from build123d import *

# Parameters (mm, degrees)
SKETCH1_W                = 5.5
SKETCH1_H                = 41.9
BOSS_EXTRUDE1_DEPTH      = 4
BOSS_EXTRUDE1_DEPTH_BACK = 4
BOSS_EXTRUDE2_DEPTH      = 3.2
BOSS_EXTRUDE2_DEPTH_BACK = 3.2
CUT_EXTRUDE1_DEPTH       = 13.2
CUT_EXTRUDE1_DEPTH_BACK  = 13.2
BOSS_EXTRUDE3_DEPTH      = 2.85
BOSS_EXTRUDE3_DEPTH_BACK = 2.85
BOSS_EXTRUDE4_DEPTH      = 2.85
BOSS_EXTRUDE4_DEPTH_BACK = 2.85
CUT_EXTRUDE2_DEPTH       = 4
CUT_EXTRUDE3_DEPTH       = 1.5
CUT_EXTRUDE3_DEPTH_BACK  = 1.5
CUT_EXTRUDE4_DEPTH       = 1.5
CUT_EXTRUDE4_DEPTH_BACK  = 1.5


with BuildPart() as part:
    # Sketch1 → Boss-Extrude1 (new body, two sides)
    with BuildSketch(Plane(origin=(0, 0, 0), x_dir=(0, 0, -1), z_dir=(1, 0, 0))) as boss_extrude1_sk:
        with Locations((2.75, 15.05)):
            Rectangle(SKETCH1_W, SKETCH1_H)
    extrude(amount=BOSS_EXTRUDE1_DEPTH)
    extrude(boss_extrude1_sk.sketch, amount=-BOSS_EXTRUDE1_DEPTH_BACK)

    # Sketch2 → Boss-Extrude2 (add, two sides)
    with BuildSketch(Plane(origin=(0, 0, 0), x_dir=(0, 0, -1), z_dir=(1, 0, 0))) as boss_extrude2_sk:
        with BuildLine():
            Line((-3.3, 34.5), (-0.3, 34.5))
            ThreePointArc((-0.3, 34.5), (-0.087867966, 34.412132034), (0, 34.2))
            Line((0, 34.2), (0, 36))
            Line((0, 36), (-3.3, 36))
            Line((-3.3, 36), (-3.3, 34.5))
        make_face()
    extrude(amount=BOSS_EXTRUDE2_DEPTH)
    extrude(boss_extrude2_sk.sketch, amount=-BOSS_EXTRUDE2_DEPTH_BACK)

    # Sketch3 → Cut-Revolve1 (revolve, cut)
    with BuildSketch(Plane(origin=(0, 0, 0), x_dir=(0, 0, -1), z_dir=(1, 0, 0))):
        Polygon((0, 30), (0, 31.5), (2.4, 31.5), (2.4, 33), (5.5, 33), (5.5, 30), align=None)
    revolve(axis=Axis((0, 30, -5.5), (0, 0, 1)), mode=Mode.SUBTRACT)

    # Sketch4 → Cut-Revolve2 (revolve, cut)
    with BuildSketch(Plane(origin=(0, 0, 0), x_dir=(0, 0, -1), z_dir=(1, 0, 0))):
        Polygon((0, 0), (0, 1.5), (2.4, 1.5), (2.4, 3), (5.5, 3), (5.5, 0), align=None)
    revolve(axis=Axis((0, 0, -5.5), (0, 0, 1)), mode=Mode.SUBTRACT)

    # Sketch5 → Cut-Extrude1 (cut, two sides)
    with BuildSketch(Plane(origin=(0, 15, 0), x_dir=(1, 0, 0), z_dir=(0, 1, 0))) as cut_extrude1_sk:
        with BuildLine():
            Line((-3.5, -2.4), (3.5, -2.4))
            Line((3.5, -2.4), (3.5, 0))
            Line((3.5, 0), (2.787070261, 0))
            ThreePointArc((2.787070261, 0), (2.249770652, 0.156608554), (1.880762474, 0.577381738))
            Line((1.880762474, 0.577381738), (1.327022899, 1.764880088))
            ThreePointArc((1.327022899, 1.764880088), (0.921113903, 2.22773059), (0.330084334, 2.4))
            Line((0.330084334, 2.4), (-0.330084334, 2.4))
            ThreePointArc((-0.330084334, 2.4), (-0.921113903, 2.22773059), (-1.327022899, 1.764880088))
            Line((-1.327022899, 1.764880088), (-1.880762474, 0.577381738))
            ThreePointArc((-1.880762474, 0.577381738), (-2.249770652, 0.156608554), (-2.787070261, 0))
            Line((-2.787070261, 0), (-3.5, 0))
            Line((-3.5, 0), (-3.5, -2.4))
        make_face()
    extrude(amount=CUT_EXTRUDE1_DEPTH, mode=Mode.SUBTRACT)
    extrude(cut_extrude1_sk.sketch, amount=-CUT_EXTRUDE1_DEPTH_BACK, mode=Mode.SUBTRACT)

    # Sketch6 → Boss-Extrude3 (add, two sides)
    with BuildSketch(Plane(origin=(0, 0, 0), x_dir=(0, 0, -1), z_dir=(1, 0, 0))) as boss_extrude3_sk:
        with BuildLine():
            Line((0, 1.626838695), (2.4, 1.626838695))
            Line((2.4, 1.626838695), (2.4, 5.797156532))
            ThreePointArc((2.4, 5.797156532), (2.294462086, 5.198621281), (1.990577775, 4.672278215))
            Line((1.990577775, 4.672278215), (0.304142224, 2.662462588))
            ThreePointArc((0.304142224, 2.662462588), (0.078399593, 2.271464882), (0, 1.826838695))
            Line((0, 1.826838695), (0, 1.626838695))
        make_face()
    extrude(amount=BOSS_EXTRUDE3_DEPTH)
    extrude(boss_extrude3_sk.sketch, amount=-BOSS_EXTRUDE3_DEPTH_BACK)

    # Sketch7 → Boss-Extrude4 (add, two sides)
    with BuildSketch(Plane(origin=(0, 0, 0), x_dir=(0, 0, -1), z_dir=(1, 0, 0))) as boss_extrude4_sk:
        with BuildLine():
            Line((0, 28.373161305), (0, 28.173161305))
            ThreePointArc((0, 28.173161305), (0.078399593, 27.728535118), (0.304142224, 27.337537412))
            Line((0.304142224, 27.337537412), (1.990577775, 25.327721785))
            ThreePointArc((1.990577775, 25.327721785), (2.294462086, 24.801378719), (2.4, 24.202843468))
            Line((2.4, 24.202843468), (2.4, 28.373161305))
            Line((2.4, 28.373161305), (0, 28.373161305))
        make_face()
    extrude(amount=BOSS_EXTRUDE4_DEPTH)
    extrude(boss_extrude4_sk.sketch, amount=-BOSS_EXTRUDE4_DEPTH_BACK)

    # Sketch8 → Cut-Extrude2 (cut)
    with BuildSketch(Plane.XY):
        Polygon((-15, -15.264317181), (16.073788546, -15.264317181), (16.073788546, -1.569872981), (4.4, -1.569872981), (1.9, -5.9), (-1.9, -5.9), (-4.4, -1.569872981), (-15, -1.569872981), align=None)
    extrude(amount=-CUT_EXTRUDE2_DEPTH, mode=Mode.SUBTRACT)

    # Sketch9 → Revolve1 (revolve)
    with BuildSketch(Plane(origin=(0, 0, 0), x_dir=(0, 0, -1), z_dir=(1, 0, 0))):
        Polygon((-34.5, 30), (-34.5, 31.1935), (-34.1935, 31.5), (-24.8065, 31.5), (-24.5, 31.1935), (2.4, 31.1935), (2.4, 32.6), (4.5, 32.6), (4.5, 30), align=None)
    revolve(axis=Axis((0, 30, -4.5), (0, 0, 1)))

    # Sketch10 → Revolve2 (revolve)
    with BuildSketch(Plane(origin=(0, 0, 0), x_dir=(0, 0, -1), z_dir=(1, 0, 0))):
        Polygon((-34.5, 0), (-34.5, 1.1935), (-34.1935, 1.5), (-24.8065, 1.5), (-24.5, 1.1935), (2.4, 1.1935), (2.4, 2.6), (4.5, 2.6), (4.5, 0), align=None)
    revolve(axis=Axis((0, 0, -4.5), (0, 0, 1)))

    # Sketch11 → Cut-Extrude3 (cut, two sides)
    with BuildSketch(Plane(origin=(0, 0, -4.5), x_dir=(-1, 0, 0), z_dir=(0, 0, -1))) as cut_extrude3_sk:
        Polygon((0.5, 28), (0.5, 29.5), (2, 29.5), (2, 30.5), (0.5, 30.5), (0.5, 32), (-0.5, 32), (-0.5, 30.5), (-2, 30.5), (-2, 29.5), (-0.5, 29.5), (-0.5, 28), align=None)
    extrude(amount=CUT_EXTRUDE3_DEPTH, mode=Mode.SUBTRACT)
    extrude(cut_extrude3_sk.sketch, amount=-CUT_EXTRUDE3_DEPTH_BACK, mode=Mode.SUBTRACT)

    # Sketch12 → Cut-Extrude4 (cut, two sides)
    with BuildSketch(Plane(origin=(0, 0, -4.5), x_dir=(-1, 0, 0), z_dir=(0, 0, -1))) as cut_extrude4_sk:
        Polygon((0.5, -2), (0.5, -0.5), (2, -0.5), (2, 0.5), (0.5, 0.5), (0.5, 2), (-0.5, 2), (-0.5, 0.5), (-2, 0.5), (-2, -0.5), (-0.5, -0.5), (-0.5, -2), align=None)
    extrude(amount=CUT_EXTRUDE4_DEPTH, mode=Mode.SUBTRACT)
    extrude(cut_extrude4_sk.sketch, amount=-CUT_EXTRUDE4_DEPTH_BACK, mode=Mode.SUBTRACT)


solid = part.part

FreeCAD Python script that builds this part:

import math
import FreeCAD as App
import Part
import Sketcher
Q = App.Units.Quantity

doc = App.newDocument("Part")
body = doc.addObject("PartDesign::Body", "Body")

# Sketch on YZ plane
sketch1 = body.newObject("Sketcher::SketchObject", "Sketch")
sketch1.AttachmentSupport = (doc.getObject("YZ_Plane"), [""])
sketch1.MapMode = "FlatFace"
sketch1.addGeometry([
    Part.LineSegment(App.Vector(36, 0, 0), App.Vector(-5.9, 0, 0)),
    Part.LineSegment(App.Vector(-5.9, 0, 0), App.Vector(-5.9, -5.5, 0)),
    Part.LineSegment(App.Vector(-5.9, -5.5, 0), App.Vector(36, -5.5, 0)),
    Part.LineSegment(App.Vector(36, -5.5, 0), App.Vector(36, 0, 0)),
], False)
sketch1.addConstraint([
    Sketcher.Constraint("Coincident", 0, 2, 1, 1),
    Sketcher.Constraint("Coincident", 1, 2, 2, 1),
    Sketcher.Constraint("Coincident", 2, 2, 3, 1),
    Sketcher.Constraint("Coincident", 3, 2, 0, 1),
    Sketcher.Constraint("Horizontal", 0),
    Sketcher.Constraint("Vertical", 1),
    Sketcher.Constraint("Horizontal", 2),
    Sketcher.Constraint("Vertical", 3),
    Sketcher.Constraint("PointOnObject", 0, 2, -1),
    Sketcher.Constraint("DistanceX", 0, 2, 0, 1, Q("41.9 mm")),
    Sketcher.Constraint("DistanceY", 1, 2, 1, 1, Q("5.5 mm")),
    Sketcher.Constraint("DistanceX", -1, 1, 2, 2, Q("36 mm")),
])
pad1 = body.newObject("PartDesign::Pad", "Pad")
pad1.Profile = sketch1
pad1.Type = "TwoLengths"
pad1.Length = 4
pad1.Length2 = 4

# Sketch on YZ plane
sketch2 = body.newObject("Sketcher::SketchObject", "Sketch001")
sketch2.AttachmentSupport = (doc.getObject("YZ_Plane"), [""])
sketch2.MapMode = "FlatFace"
sketch2.addGeometry([
    Part.LineSegment(App.Vector(34.5, 3.3, 0), App.Vector(34.5, 0.3, 0)),  # 0
    Part.ArcOfCircle(Part.Circle(App.Vector(34.2, 0.3, 0), App.Vector(0, 0, 1), 0.3), math.radians(-90), math.radians(0)),  # 1
    Part.LineSegment(App.Vector(34.2, 0, 0), App.Vector(36, 0, 0)),  # 2
    Part.LineSegment(App.Vector(36, 0, 0), App.Vector(36, 3.3, 0)),  # 3
    Part.LineSegment(App.Vector(36, 3.3, 0), App.Vector(34.5, 3.3, 0)),  # 4
], False)
sketch2.addConstraint([
    Sketcher.Constraint("Tangent", 0, 2, 1, 2),
    Sketcher.Constraint("Tangent", 1, 1, 2, 1),
    Sketcher.Constraint("Coincident", 2, 2, 3, 1),
    Sketcher.Constraint("Coincident", 3, 2, 4, 1),
    Sketcher.Constraint("Coincident", 4, 2, 0, 1),
    Sketcher.Constraint("Vertical", 0),
    Sketcher.Constraint("Horizontal", 2),
    Sketcher.Constraint("Vertical", 3),
    Sketcher.Constraint("Horizontal", 4),
    Sketcher.Constraint("PointOnObject", 1, 1, -1),
    Sketcher.Constraint("Radius", 1, Q("0.3 mm")),
    Sketcher.Constraint("DistanceY", 0, 2, 0, 1, Q("3 mm")),
    Sketcher.Constraint("DistanceX", 2, 1, 2, 2, Q("1.8 mm")),
    Sketcher.Constraint("DistanceX", -1, 1, 2, 2, Q("36 mm")),
])
pad2 = body.newObject("PartDesign::Pad", "Pad001")
pad2.Profile = sketch2
pad2.Type = "TwoLengths"
pad2.Length = 3.2
pad2.Length2 = 3.2

# Sketch on YZ plane
sketch3 = body.newObject("Sketcher::SketchObject", "Sketch002")
sketch3.AttachmentSupport = (doc.getObject("YZ_Plane"), [""])
sketch3.MapMode = "FlatFace"
sketch3.addGeometry([
    Part.LineSegment(App.Vector(31.5, 0, 0), App.Vector(30, 0, 0)),  # 0
    Part.LineSegment(App.Vector(30, 0, 0), App.Vector(30, -5.5, 0)),  # 1
    Part.LineSegment(App.Vector(30, -5.5, 0), App.Vector(33, -5.5, 0)),  # 2
    Part.LineSegment(App.Vector(33, -5.5, 0), App.Vector(33, -2.4, 0)),  # 3
    Part.LineSegment(App.Vector(33, -2.4, 0), App.Vector(31.5, -2.4, 0)),  # 4
    Part.LineSegment(App.Vector(31.5, -2.4, 0), App.Vector(31.5, 0, 0)),  # 5
], False)
sketch3.addGeometry(Part.LineSegment(App.Vector(30, -5.5, 0), App.Vector(30, 0, 0)), True)  # axis
sketch3.addConstraint([
    Sketcher.Constraint("Coincident", 0, 2, 1, 1),
    Sketcher.Constraint("Coincident", 1, 2, 2, 1),
    Sketcher.Constraint("Coincident", 2, 2, 3, 1),
    Sketcher.Constraint("Coincident", 3, 2, 4, 1),
    Sketcher.Constraint("Coincident", 4, 2, 5, 1),
    Sketcher.Constraint("Coincident", 5, 2, 0, 1),
    Sketcher.Constraint("Horizontal", 0),
    Sketcher.Constraint("Vertical", 1),
    Sketcher.Constraint("Horizontal", 2),
    Sketcher.Constraint("Vertical", 3),
    Sketcher.Constraint("Horizontal", 4),
    Sketcher.Constraint("Vertical", 5),
    Sketcher.Constraint("Vertical", 6),
    Sketcher.Constraint("Coincident", 6, 1, 1, 2),
    Sketcher.Constraint("PointOnObject", 0, 2, -1),
    Sketcher.Constraint("PointOnObject", 6, 2, -1),
    Sketcher.Constraint("Equal", 0, 4),
    Sketcher.Constraint("DistanceX", 2, 1, 2, 2, Q("3 mm")),
    Sketcher.Constraint("DistanceY", 1, 2, 1, 1, Q("5.5 mm")),
    Sketcher.Constraint("DistanceY", 3, 1, 3, 2, Q("3.1 mm")),
    Sketcher.Constraint("DistanceX", -1, 1, 0, 2, Q("30 mm")),
])
groove = body.newObject("PartDesign::Groove", "Groove")
groove.Profile = sketch3
groove.ReferenceAxis = (sketch3, ["Axis0"])
groove.Angle = 360

# Sketch on YZ plane
sketch4 = body.newObject("Sketcher::SketchObject", "Sketch003")
sketch4.AttachmentSupport = (doc.getObject("YZ_Plane"), [""])
sketch4.MapMode = "FlatFace"
sketch4.addGeometry([
    Part.LineSegment(App.Vector(1.5, 0, 0), App.Vector(0, 0, 0)),  # 0
    Part.LineSegment(App.Vector(0, 0, 0), App.Vector(0, -5.5, 0)),  # 1
    Part.LineSegment(App.Vector(0, -5.5, 0), App.Vector(3, -5.5, 0)),  # 2
    Part.LineSegment(App.Vector(3, -5.5, 0), App.Vector(3, -2.4, 0)),  # 3
    Part.LineSegment(App.Vector(3, -2.4, 0), App.Vector(1.5, -2.4, 0)),  # 4
    Part.LineSegment(App.Vector(1.5, -2.4, 0), App.Vector(1.5, 0, 0)),  # 5
], False)
sketch4.addConstraint([
    Sketcher.Constraint("Coincident", 0, 2, 1, 1),
    Sketcher.Constraint("Coincident", 1, 2, 2, 1),
    Sketcher.Constraint("Coincident", 2, 2, 3, 1),
    Sketcher.Constraint("Coincident", 3, 2, 4, 1),
    Sketcher.Constraint("Coincident", 4, 2, 5, 1),
    Sketcher.Constraint("Coincident", 5, 2, 0, 1),
    Sketcher.Constraint("Horizontal", 0),
    Sketcher.Constraint("Vertical", 1),
    Sketcher.Constraint("Horizontal", 2),
    Sketcher.Constraint("Vertical", 3),
    Sketcher.Constraint("Horizontal", 4),
    Sketcher.Constraint("Vertical", 5),
    Sketcher.Constraint("Coincident", 0, 2, -1, 1),
    Sketcher.Constraint("Equal", 0, 4),
    Sketcher.Constraint("DistanceX", 2, 1, 2, 2, Q("3 mm")),
    Sketcher.Constraint("DistanceY", 1, 2, 1, 1, Q("5.5 mm")),
    Sketcher.Constraint("DistanceY", 3, 1, 3, 2, Q("3.1 mm")),
])
groove2 = body.newObject("PartDesign::Groove", "Groove001")
groove2.Profile = sketch4
groove2.ReferenceAxis = (sketch4, ["V_Axis"])
groove2.Angle = 360

# Sketch on XZ plane
sketch5 = body.newObject("Sketcher::SketchObject", "Sketch004")
sketch5.AttachmentSupport = (doc.getObject("XZ_Plane"), [""])
sketch5.MapMode = "FlatFace"
sketch5.AttachmentOffset = App.Placement(App.Vector(0, 0, -15), App.Rotation())
sketch5.addGeometry([
    Part.LineSegment(App.Vector(-3.5, 2.4, 0), App.Vector(3.5, 2.4, 0)),  # 0
    Part.LineSegment(App.Vector(3.5, 2.4, 0), App.Vector(3.5, 0, 0)),  # 1
    Part.LineSegment(App.Vector(3.5, 0, 0), App.Vector(2.78707, 0, 0)),  # 2
    Part.ArcOfCircle(Part.Circle(App.Vector(2.78707, -1, 0), App.Vector(0, 0, 1), 1), math.radians(90), math.radians(155)),  # 3
    Part.LineSegment(App.Vector(1.880762, -0.577382, 0), App.Vector(1.327023, -1.76488, 0)),  # 4
    Part.ArcOfCircle(Part.Circle(App.Vector(0.330084, -1.3, 0), App.Vector(0, 0, 1), 1.1), math.radians(-90), math.radians(-25)),  # 5
    Part.LineSegment(App.Vector(0.330084, -2.4, 0), App.Vector(-0.330084, -2.4, 0)),  # 6
    Part.ArcOfCircle(Part.Circle(App.Vector(-0.330084, -1.3, 0), App.Vector(0, 0, 1), 1.1), math.radians(-155), math.radians(-90)),  # 7
    Part.LineSegment(App.Vector(-1.327023, -1.76488, 0), App.Vector(-1.880762, -0.577382, 0)),  # 8
    Part.ArcOfCircle(Part.Circle(App.Vector(-2.78707, -1, 0), App.Vector(0, 0, 1), 1), math.radians(25), math.radians(90)),  # 9
    Part.LineSegment(App.Vector(-2.78707, 0, 0), App.Vector(-3.5, 0, 0)),  # 10
    Part.LineSegment(App.Vector(-3.5, 0, 0), App.Vector(-3.5, 2.4, 0)),  # 11
], False)
sketch5.addConstraint([
    Sketcher.Constraint("Coincident", 0, 2, 1, 1),
    Sketcher.Constraint("Coincident", 1, 2, 2, 1),
    Sketcher.Constraint("Tangent", 2, 2, 3, 1),
    Sketcher.Constraint("Tangent", 3, 2, 4, 1),
    Sketcher.Constraint("Tangent", 4, 2, 5, 2),
    Sketcher.Constraint("Tangent", 5, 1, 6, 1),
    Sketcher.Constraint("Tangent", 6, 2, 7, 2),
    Sketcher.Constraint("Tangent", 7, 1, 8, 1),
    Sketcher.Constraint("Tangent", 8, 2, 9, 1),
    Sketcher.Constraint("Tangent", 9, 2, 10, 1),
    Sketcher.Constraint("Coincident", 10, 2, 11, 1),
    Sketcher.Constraint("Coincident", 11, 2, 0, 1),
    Sketcher.Constraint("Horizontal", 0),
    Sketcher.Constraint("Vertical", 1),
    Sketcher.Constraint("Horizontal", 2),
    Sketcher.Constraint("Horizontal", 6),
    Sketcher.Constraint("Horizontal", 10),
    Sketcher.Constraint("Vertical", 11),
    Sketcher.Constraint("Equal", 5, 7),
    Sketcher.Constraint("Equal", 3, 9),
    Sketcher.Constraint("Symmetric", 2, 2, 9, 2, -1, 1),
    Sketcher.Constraint("Symmetric", 4, 2, 7, 1, -2),
    Sketcher.Constraint("Equal", 2, 10),
    Sketcher.Constraint("Radius", 3, Q("1 mm")),
    Sketcher.Constraint("Radius", 5, Q("1.1 mm")),
    Sketcher.Constraint("DistanceX", 0, 1, 0, 2, Q("7 mm")),
    Sketcher.Constraint("Angle", 4, Q("-115 deg")),
    Sketcher.Constraint("DistanceY", 1, 2, 1, 1, Q("2.4 mm")),
    Sketcher.Constraint("DistanceY", 5, 3, -1, 1, Q("1.3 mm")),
    Sketcher.Constraint("DistanceX", 2, 2, 2, 1, Q("0.71293 mm")),
])
pocket1 = body.newObject("PartDesign::Pocket", "Pocket")
pocket1.Profile = sketch5
pocket1.Type = "TwoLengths"
pocket1.Length = 13.2
pocket1.Length2 = 13.2

# Sketch on YZ plane
sketch6 = body.newObject("Sketcher::SketchObject", "Sketch005")
sketch6.AttachmentSupport = (doc.getObject("YZ_Plane"), [""])
sketch6.MapMode = "FlatFace"
sketch6.addGeometry([
    Part.LineSegment(App.Vector(1.626839, 0, 0), App.Vector(1.626839, -2.4, 0)),  # 0
    Part.LineSegment(App.Vector(1.626839, -2.4, 0), App.Vector(5.797157, -2.4, 0)),  # 1
    Part.ArcOfCircle(Part.Circle(App.Vector(5.797157, -0.65, 0), App.Vector(0, 0, 1), 1.75), math.radians(-130), math.radians(-90)),  # 2
    Part.LineSegment(App.Vector(4.672278, -1.990578, 0), App.Vector(2.662463, -0.304142, 0)),  # 3
    Part.ArcOfCircle(Part.Circle(App.Vector(1.826839, -1.3, 0), App.Vector(0, 0, 1), 1.3), math.radians(50), math.radians(90)),  # 4
    Part.LineSegment(App.Vector(1.826839, 0, 0), App.Vector(1.626839, 0, 0)),  # 5
], False)
sketch6.addConstraint([
    Sketcher.Constraint("Coincident", 0, 2, 1, 1),
    Sketcher.Constraint("Tangent", 1, 2, 2, 2),
    Sketcher.Constraint("Tangent", 2, 1, 3, 1),
    Sketcher.Constraint("Tangent", 3, 2, 4, 1),
    Sketcher.Constraint("Tangent", 4, 2, 5, 1),
    Sketcher.Constraint("Coincident", 5, 2, 0, 1),
    Sketcher.Constraint("Vertical", 0),
    Sketcher.Constraint("Horizontal", 1),
    Sketcher.Constraint("Horizontal", 5),
    Sketcher.Constraint("PointOnObject", 4, 2, -1),
    Sketcher.Constraint("Radius", 4, Q("1.3 mm")),
    Sketcher.Constraint("Angle", 3, Q("140 deg")),
    Sketcher.Constraint("Radius", 2, Q("1.75 mm")),
    Sketcher.Constraint("DistanceX", 5, 2, 5, 1, Q("0.2 mm")),
    Sketcher.Constraint("DistanceY", 0, 2, 0, 1, Q("2.4 mm")),
    Sketcher.Constraint("DistanceX", -1, 1, 4, 3, Q("1.826839 mm")),
])
pad3 = body.newObject("PartDesign::Pad", "Pad002")
pad3.Profile = sketch6
pad3.Type = "TwoLengths"
pad3.Length = 2.85
pad3.Length2 = 2.85

# Sketch on YZ plane
sketch7 = body.newObject("Sketcher::SketchObject", "Sketch006")
sketch7.AttachmentSupport = (doc.getObject("YZ_Plane"), [""])
sketch7.MapMode = "FlatFace"
sketch7.addGeometry([
    Part.LineSegment(App.Vector(28.373161, 0, 0), App.Vector(28.173161, 0, 0)),  # 0
    Part.ArcOfCircle(Part.Circle(App.Vector(28.173161, -1.3, 0), App.Vector(0, 0, 1), 1.3), math.radians(90), math.radians(130)),  # 1
    Part.LineSegment(App.Vector(27.337537, -0.304142, 0), App.Vector(25.327722, -1.990578, 0)),  # 2
    Part.ArcOfCircle(Part.Circle(App.Vector(24.202843, -0.65, 0), App.Vector(0, 0, 1), 1.75), math.radians(-90), math.radians(-50)),  # 3
    Part.LineSegment(App.Vector(24.202843, -2.4, 0), App.Vector(28.373161, -2.4, 0)),  # 4
    Part.LineSegment(App.Vector(28.373161, -2.4, 0), App.Vector(28.373161, 0, 0)),  # 5
], False)
sketch7.addConstraint([
    Sketcher.Constraint("Tangent", 0, 2, 1, 1),
    Sketcher.Constraint("Tangent", 1, 2, 2, 1),
    Sketcher.Constraint("Tangent", 2, 2, 3, 2),
    Sketcher.Constraint("Tangent", 3, 1, 4, 1),
    Sketcher.Constraint("Coincident", 4, 2, 5, 1),
    Sketcher.Constraint("Coincident", 5, 2, 0, 1),
    Sketcher.Constraint("Horizontal", 0),
    Sketcher.Constraint("Horizontal", 4),
    Sketcher.Constraint("Vertical", 5),
    Sketcher.Constraint("PointOnObject", 0, 2, -1),
    Sketcher.Constraint("Radius", 1, Q("1.3 mm")),
    Sketcher.Constraint("Angle", 2, Q("-140 deg")),
    Sketcher.Constraint("Radius", 3, Q("1.75 mm")),
    Sketcher.Constraint("DistanceX", 0, 2, 0, 1, Q("0.2 mm")),
    Sketcher.Constraint("DistanceY", 5, 1, 5, 2, Q("2.4 mm")),
    Sketcher.Constraint("DistanceX", -1, 1, 1, 3, Q("28.173161 mm")),
])
pad4 = body.newObject("PartDesign::Pad", "Pad003")
pad4.Profile = sketch7
pad4.Type = "TwoLengths"
pad4.Length = 2.85
pad4.Length2 = 2.85

# Sketch on XY plane
sketch8 = body.newObject("Sketcher::SketchObject", "Sketch007")
sketch8.AttachmentSupport = (doc.getObject("XY_Plane"), [""])
sketch8.MapMode = "FlatFace"
sketch8.addGeometry([
    Part.LineSegment(App.Vector(-15, -15.264317, 0), App.Vector(16.073789, -15.264317, 0)),  # 0
    Part.LineSegment(App.Vector(16.073789, -15.264317, 0), App.Vector(16.073789, -1.569873, 0)),  # 1
    Part.LineSegment(App.Vector(16.073789, -1.569873, 0), App.Vector(4.4, -1.569873, 0)),  # 2
    Part.LineSegment(App.Vector(4.4, -1.569873, 0), App.Vector(1.9, -5.9, 0)),  # 3
    Part.LineSegment(App.Vector(1.9, -5.9, 0), App.Vector(-1.9, -5.9, 0)),  # 4
    Part.LineSegment(App.Vector(-1.9, -5.9, 0), App.Vector(-4.4, -1.569873, 0)),  # 5
    Part.LineSegment(App.Vector(-4.4, -1.569873, 0), App.Vector(-15, -1.569873, 0)),  # 6
    Part.LineSegment(App.Vector(-15, -1.569873, 0), App.Vector(-15, -15.264317, 0)),  # 7
], False)
sketch8.addConstraint([
    Sketcher.Constraint("Coincident", 0, 2, 1, 1),
    Sketcher.Constraint("Coincident", 1, 2, 2, 1),
    Sketcher.Constraint("Coincident", 2, 2, 3, 1),
    Sketcher.Constraint("Coincident", 3, 2, 4, 1),
    Sketcher.Constraint("Coincident", 4, 2, 5, 1),
    Sketcher.Constraint("Coincident", 5, 2, 6, 1),
    Sketcher.Constraint("Coincident", 6, 2, 7, 1),
    Sketcher.Constraint("Coincident", 7, 2, 0, 1),
    Sketcher.Constraint("Horizontal", 0),
    Sketcher.Constraint("Vertical", 1),
    Sketcher.Constraint("Horizontal", 2),
    Sketcher.Constraint("Horizontal", 4),
    Sketcher.Constraint("Horizontal", 6),
    Sketcher.Constraint("Vertical", 7),
    Sketcher.Constraint("Symmetric", 2, 2, 5, 2, -2),
    Sketcher.Constraint("Equal", 3, 5),
    Sketcher.Constraint("Angle", 3, Q("-120 deg")),
    Sketcher.Constraint("Distance", 3, Q("5 mm")),
    Sketcher.Constraint("DistanceX", 4, 2, 4, 1, Q("3.8 mm")),
    Sketcher.Constraint("DistanceX", 6, 2, 6, 1, Q("10.6 mm")),
    Sketcher.Constraint("DistanceY", 3, 2, -1, 1, Q("5.9 mm")),
    Sketcher.Constraint("DistanceX", 0, 1, 0, 2, Q("31.073789 mm")),
    Sketcher.Constraint("DistanceY", 1, 1, 1, 2, Q("13.694444 mm")),
])
pocket2 = body.newObject("PartDesign::Pocket", "Pocket001")
pocket2.Profile = sketch8
pocket2.Length = 4

# Sketch on YZ plane
sketch9 = body.newObject("Sketcher::SketchObject", "Sketch008")
sketch9.AttachmentSupport = (doc.getObject("YZ_Plane"), [""])
sketch9.MapMode = "FlatFace"
sketch9.addGeometry([
    Part.LineSegment(App.Vector(31.1935, 34.5, 0), App.Vector(30, 34.5, 0)),  # 0
    Part.LineSegment(App.Vector(30, 34.5, 0), App.Vector(30, -4.5, 0)),  # 1
    Part.LineSegment(App.Vector(30, -4.5, 0), App.Vector(32.6, -4.5, 0)),  # 2
    Part.LineSegment(App.Vector(32.6, -4.5, 0), App.Vector(32.6, -2.4, 0)),  # 3
    Part.LineSegment(App.Vector(32.6, -2.4, 0), App.Vector(31.1935, -2.4, 0)),  # 4
    Part.LineSegment(App.Vector(31.1935, -2.4, 0), App.Vector(31.1935, 24.5, 0)),  # 5
    Part.LineSegment(App.Vector(31.1935, 24.5, 0), App.Vector(31.5, 24.8065, 0)),  # 6
    Part.LineSegment(App.Vector(31.5, 24.8065, 0), App.Vector(31.5, 34.1935, 0)),  # 7
    Part.LineSegment(App.Vector(31.5, 34.1935, 0), App.Vector(31.1935, 34.5, 0)),  # 8
], False)
sketch9.addGeometry(Part.LineSegment(App.Vector(30, -4.5, 0), App.Vector(30, 34.5, 0)), True)  # axis
sketch9.addConstraint([
    Sketcher.Constraint("Coincident", 0, 2, 1, 1),
    Sketcher.Constraint("Coincident", 1, 2, 2, 1),
    Sketcher.Constraint("Coincident", 2, 2, 3, 1),
    Sketcher.Constraint("Coincident", 3, 2, 4, 1),
    Sketcher.Constraint("Coincident", 4, 2, 5, 1),
    Sketcher.Constraint("Coincident", 5, 2, 6, 1),
    Sketcher.Constraint("Coincident", 6, 2, 7, 1),
    Sketcher.Constraint("Coincident", 7, 2, 8, 1),
    Sketcher.Constraint("Coincident", 8, 2, 0, 1),
    Sketcher.Constraint("Horizontal", 0),
    Sketcher.Constraint("Vertical", 1),
    Sketcher.Constraint("Horizontal", 2),
    Sketcher.Constraint("Vertical", 3),
    Sketcher.Constraint("Horizontal", 4),
    Sketcher.Constraint("Vertical", 5),
    Sketcher.Constraint("Vertical", 7),
    Sketcher.Constraint("Vertical", 9),
    Sketcher.Constraint("Coincident", 9, 1, 1, 2),
    Sketcher.Constraint("Perpendicular", 6, 8),
    Sketcher.Constraint("Horizontal", 8, 2, 9, 2),
    Sketcher.Constraint("Vertical", 5, 2, 8, 2),
    Sketcher.Constraint("Equal", 6, 8),
    Sketcher.Constraint("DistanceY", 1, 2, 1, 1, Q("39 mm")),
    Sketcher.Constraint("DistanceX", 2, 1, 2, 2, Q("2.6 mm")),
    Sketcher.Constraint("DistanceY", 3, 1, 3, 2, Q("2.1 mm")),
    Sketcher.Constraint("DistanceY", 5, 1, 5, 2, Q("26.9 mm")),
    Sketcher.Constraint("DistanceX", -1, 1, 0, 2, Q("30 mm")),
    Sketcher.Constraint("DistanceY", -1, 1, 0, 2, Q("34.5 mm")),
    Sketcher.Constraint("DistanceX", -1, 1, 6, 2, Q("31.5 mm")),
    Sketcher.Constraint("DistanceY", 7, 1, 7, 2, Q("9.387 mm")),
])
revolution = body.newObject("PartDesign::Revolution", "Revolution")
revolution.Profile = sketch9
revolution.ReferenceAxis = (sketch9, ["Axis0"])
revolution.Angle = 360

# Sketch on YZ plane
sketch10 = body.newObject("Sketcher::SketchObject", "Sketch009")
sketch10.AttachmentSupport = (doc.getObject("YZ_Plane"), [""])
sketch10.MapMode = "FlatFace"
sketch10.addGeometry([
    Part.LineSegment(App.Vector(1.1935, 34.5, 0), App.Vector(0, 34.5, 0)),  # 0
    Part.LineSegment(App.Vector(0, 34.5, 0), App.Vector(0, -4.5, 0)),  # 1
    Part.LineSegment(App.Vector(0, -4.5, 0), App.Vector(2.6, -4.5, 0)),  # 2
    Part.LineSegment(App.Vector(2.6, -4.5, 0), App.Vector(2.6, -2.4, 0)),  # 3
    Part.LineSegment(App.Vector(2.6, -2.4, 0), App.Vector(1.1935, -2.4, 0)),  # 4
    Part.LineSegment(App.Vector(1.1935, -2.4, 0), App.Vector(1.1935, 24.5, 0)),  # 5
    Part.LineSegment(App.Vector(1.1935, 24.5, 0), App.Vector(1.5, 24.8065, 0)),  # 6
    Part.LineSegment(App.Vector(1.5, 24.8065, 0), App.Vector(1.5, 34.1935, 0)),  # 7
    Part.LineSegment(App.Vector(1.5, 34.1935, 0), App.Vector(1.1935, 34.5, 0)),  # 8
], False)
sketch10.addConstraint([
    Sketcher.Constraint("Coincident", 0, 2, 1, 1),
    Sketcher.Constraint("Coincident", 1, 2, 2, 1),
    Sketcher.Constraint("Coincident", 2, 2, 3, 1),
    Sketcher.Constraint("Coincident", 3, 2, 4, 1),
    Sketcher.Constraint("Coincident", 4, 2, 5, 1),
    Sketcher.Constraint("Coincident", 5, 2, 6, 1),
    Sketcher.Constraint("Coincident", 6, 2, 7, 1),
    Sketcher.Constraint("Coincident", 7, 2, 8, 1),
    Sketcher.Constraint("Coincident", 8, 2, 0, 1),
    Sketcher.Constraint("Horizontal", 0),
    Sketcher.Constraint("Vertical", 1),
    Sketcher.Constraint("Horizontal", 2),
    Sketcher.Constraint("Vertical", 3),
    Sketcher.Constraint("Horizontal", 4),
    Sketcher.Constraint("Vertical", 5),
    Sketcher.Constraint("Vertical", 7),
    Sketcher.Constraint("PointOnObject", 0, 2, -2),
    Sketcher.Constraint("Perpendicular", 6, 8),
    Sketcher.Constraint("Vertical", 5, 2, 8, 2),
    Sketcher.Constraint("Equal", 6, 8),
    Sketcher.Constraint("DistanceY", 1, 2, 1, 1, Q("39 mm")),
    Sketcher.Constraint("DistanceX", 2, 1, 2, 2, Q("2.6 mm")),
    Sketcher.Constraint("DistanceY", 3, 1, 3, 2, Q("2.1 mm")),
    Sketcher.Constraint("DistanceY", 5, 1, 5, 2, Q("26.9 mm")),
    Sketcher.Constraint("DistanceY", -1, 1, 0, 2, Q("34.5 mm")),
    Sketcher.Constraint("DistanceX", -1, 1, 6, 2, Q("1.5 mm")),
    Sketcher.Constraint("DistanceY", 7, 1, 7, 2, Q("9.387 mm")),
])
revolution2 = body.newObject("PartDesign::Revolution", "Revolution001")
revolution2.Profile = sketch10
revolution2.ReferenceAxis = (sketch10, ["V_Axis"])
revolution2.Angle = 360

# Sketch on XY plane
sketch11 = body.newObject("Sketcher::SketchObject", "Sketch010")
sketch11.AttachmentSupport = (doc.getObject("XY_Plane"), [""])
sketch11.MapMode = "FlatFace"
sketch11.AttachmentOffset = App.Placement(App.Vector(0, 0, -4.5), App.Rotation())
sketch11.addGeometry([
    Part.LineSegment(App.Vector(-0.5, 28, 0), App.Vector(-0.5, 29.5, 0)),  # 0
    Part.LineSegment(App.Vector(-0.5, 29.5, 0), App.Vector(-2, 29.5, 0)),  # 1
    Part.LineSegment(App.Vector(-2, 29.5, 0), App.Vector(-2, 30.5, 0)),  # 2
    Part.LineSegment(App.Vector(-2, 30.5, 0), App.Vector(-0.5, 30.5, 0)),  # 3
    Part.LineSegment(App.Vector(-0.5, 30.5, 0), App.Vector(-0.5, 32, 0)),  # 4
    Part.LineSegment(App.Vector(-0.5, 32, 0), App.Vector(0.5, 32, 0)),  # 5
    Part.LineSegment(App.Vector(0.5, 32, 0), App.Vector(0.5, 30.5, 0)),  # 6
    Part.LineSegment(App.Vector(0.5, 30.5, 0), App.Vector(2, 30.5, 0)),  # 7
    Part.LineSegment(App.Vector(2, 30.5, 0), App.Vector(2, 29.5, 0)),  # 8
    Part.LineSegment(App.Vector(2, 29.5, 0), App.Vector(0.5, 29.5, 0)),  # 9
    Part.LineSegment(App.Vector(0.5, 29.5, 0), App.Vector(0.5, 28, 0)),  # 10
    Part.LineSegment(App.Vector(0.5, 28, 0), App.Vector(-0.5, 28, 0)),  # 11
], False)
sketch11.addConstraint([
    Sketcher.Constraint("Coincident", 0, 2, 1, 1),
    Sketcher.Constraint("Coincident", 1, 2, 2, 1),
    Sketcher.Constraint("Coincident", 2, 2, 3, 1),
    Sketcher.Constraint("Coincident", 3, 2, 4, 1),
    Sketcher.Constraint("Coincident", 4, 2, 5, 1),
    Sketcher.Constraint("Coincident", 5, 2, 6, 1),
    Sketcher.Constraint("Coincident", 6, 2, 7, 1),
    Sketcher.Constraint("Coincident", 7, 2, 8, 1),
    Sketcher.Constraint("Coincident", 8, 2, 9, 1),
    Sketcher.Constraint("Coincident", 9, 2, 10, 1),
    Sketcher.Constraint("Coincident", 10, 2, 11, 1),
    Sketcher.Constraint("Coincident", 11, 2, 0, 1),
    Sketcher.Constraint("Vertical", 0),
    Sketcher.Constraint("Horizontal", 1),
    Sketcher.Constraint("Vertical", 2),
    Sketcher.Constraint("Horizontal", 3),
    Sketcher.Constraint("Vertical", 4),
    Sketcher.Constraint("Horizontal", 5),
    Sketcher.Constraint("Vertical", 6),
    Sketcher.Constraint("Horizontal", 7),
    Sketcher.Constraint("Vertical", 8),
    Sketcher.Constraint("Horizontal", 9),
    Sketcher.Constraint("Vertical", 10),
    Sketcher.Constraint("Horizontal", 11),
    Sketcher.Constraint("Symmetric", 3, 2, 6, 2, -2),
    Sketcher.Constraint("Symmetric", 1, 2, 8, 2, -2),
    Sketcher.Constraint("Vertical", 0, 2, 3, 2),
    Sketcher.Constraint("Vertical", 6, 2, 9, 2),
    Sketcher.Constraint("Equal", 9, 0),
    Sketcher.Constraint("Equal", 11, 2),
    Sketcher.Constraint("Equal", 0, 4),
    Sketcher.Constraint("DistanceX", 5, 1, 5, 2, Q("1 mm")),
    Sketcher.Constraint("DistanceX", 1, 2, 1, 1, Q("1.5 mm")),
    Sketcher.Constraint("DistanceY", -1, 1, 4, 2, Q("32 mm")),
])
pocket3 = body.newObject("PartDesign::Pocket", "Pocket002")
pocket3.Profile = sketch11
pocket3.Type = "TwoLengths"
pocket3.Length = 1.5
pocket3.Length2 = 1.5

# Sketch on XY plane
sketch12 = body.newObject("Sketcher::SketchObject", "Sketch011")
sketch12.AttachmentSupport = (doc.getObject("XY_Plane"), [""])
sketch12.MapMode = "FlatFace"
sketch12.AttachmentOffset = App.Placement(App.Vector(0, 0, -4.5), App.Rotation())
sketch12.addGeometry([
    Part.LineSegment(App.Vector(-0.5, -2, 0), App.Vector(-0.5, -0.5, 0)),  # 0
    Part.LineSegment(App.Vector(-0.5, -0.5, 0), App.Vector(-2, -0.5, 0)),  # 1
    Part.LineSegment(App.Vector(-2, -0.5, 0), App.Vector(-2, 0.5, 0)),  # 2
    Part.LineSegment(App.Vector(-2, 0.5, 0), App.Vector(-0.5, 0.5, 0)),  # 3
    Part.LineSegment(App.Vector(-0.5, 0.5, 0), App.Vector(-0.5, 2, 0)),  # 4
    Part.LineSegment(App.Vector(-0.5, 2, 0), App.Vector(0.5, 2, 0)),  # 5
    Part.LineSegment(App.Vector(0.5, 2, 0), App.Vector(0.5, 0.5, 0)),  # 6
    Part.LineSegment(App.Vector(0.5, 0.5, 0), App.Vector(2, 0.5, 0)),  # 7
    Part.LineSegment(App.Vector(2, 0.5, 0), App.Vector(2, -0.5, 0)),  # 8
    Part.LineSegment(App.Vector(2, -0.5, 0), App.Vector(0.5, -0.5, 0)),  # 9
    Part.LineSegment(App.Vector(0.5, -0.5, 0), App.Vector(0.5, -2, 0)),  # 10
    Part.LineSegment(App.Vector(0.5, -2, 0), App.Vector(-0.5, -2, 0)),  # 11
], False)
sketch12.addConstraint([
    Sketcher.Constraint("Coincident", 0, 2, 1, 1),
    Sketcher.Constraint("Coincident", 1, 2, 2, 1),
    Sketcher.Constraint("Coincident", 2, 2, 3, 1),
    Sketcher.Constraint("Coincident", 3, 2, 4, 1),
    Sketcher.Constraint("Coincident", 4, 2, 5, 1),
    Sketcher.Constraint("Coincident", 5, 2, 6, 1),
    Sketcher.Constraint("Coincident", 6, 2, 7, 1),
    Sketcher.Constraint("Coincident", 7, 2, 8, 1),
    Sketcher.Constraint("Coincident", 8, 2, 9, 1),
    Sketcher.Constraint("Coincident", 9, 2, 10, 1),
    Sketcher.Constraint("Coincident", 10, 2, 11, 1),
    Sketcher.Constraint("Coincident", 11, 2, 0, 1),
    Sketcher.Constraint("Vertical", 0),
    Sketcher.Constraint("Horizontal", 1),
    Sketcher.Constraint("Vertical", 2),
    Sketcher.Constraint("Horizontal", 3),
    Sketcher.Constraint("Vertical", 4),
    Sketcher.Constraint("Horizontal", 5),
    Sketcher.Constraint("Vertical", 6),
    Sketcher.Constraint("Horizontal", 7),
    Sketcher.Constraint("Vertical", 8),
    Sketcher.Constraint("Horizontal", 9),
    Sketcher.Constraint("Vertical", 10),
    Sketcher.Constraint("Horizontal", 11),
    Sketcher.Constraint("Symmetric", 0, 2, 6, 2, -1, 1),
    Sketcher.Constraint("Symmetric", 2, 2, 8, 2, -1, 1),
    Sketcher.Constraint("Symmetric", 4, 2, 10, 2, -1, 1),
    Sketcher.Constraint("Symmetric", 3, 2, 6, 2, -2),
    Sketcher.Constraint("Equal", 9, 0),
    Sketcher.Constraint("Equal", 11, 2),
    Sketcher.Constraint("DistanceX", 5, 1, 5, 2, Q("1 mm")),
    Sketcher.Constraint("DistanceX", 1, 2, 1, 1, Q("1.5 mm")),
])
pocket4 = body.newObject("PartDesign::Pocket", "Pocket003")
pocket4.Profile = sketch12
pocket4.Type = "TwoLengths"
pocket4.Length = 1.5
pocket4.Length2 = 1.5

doc.recompute()
